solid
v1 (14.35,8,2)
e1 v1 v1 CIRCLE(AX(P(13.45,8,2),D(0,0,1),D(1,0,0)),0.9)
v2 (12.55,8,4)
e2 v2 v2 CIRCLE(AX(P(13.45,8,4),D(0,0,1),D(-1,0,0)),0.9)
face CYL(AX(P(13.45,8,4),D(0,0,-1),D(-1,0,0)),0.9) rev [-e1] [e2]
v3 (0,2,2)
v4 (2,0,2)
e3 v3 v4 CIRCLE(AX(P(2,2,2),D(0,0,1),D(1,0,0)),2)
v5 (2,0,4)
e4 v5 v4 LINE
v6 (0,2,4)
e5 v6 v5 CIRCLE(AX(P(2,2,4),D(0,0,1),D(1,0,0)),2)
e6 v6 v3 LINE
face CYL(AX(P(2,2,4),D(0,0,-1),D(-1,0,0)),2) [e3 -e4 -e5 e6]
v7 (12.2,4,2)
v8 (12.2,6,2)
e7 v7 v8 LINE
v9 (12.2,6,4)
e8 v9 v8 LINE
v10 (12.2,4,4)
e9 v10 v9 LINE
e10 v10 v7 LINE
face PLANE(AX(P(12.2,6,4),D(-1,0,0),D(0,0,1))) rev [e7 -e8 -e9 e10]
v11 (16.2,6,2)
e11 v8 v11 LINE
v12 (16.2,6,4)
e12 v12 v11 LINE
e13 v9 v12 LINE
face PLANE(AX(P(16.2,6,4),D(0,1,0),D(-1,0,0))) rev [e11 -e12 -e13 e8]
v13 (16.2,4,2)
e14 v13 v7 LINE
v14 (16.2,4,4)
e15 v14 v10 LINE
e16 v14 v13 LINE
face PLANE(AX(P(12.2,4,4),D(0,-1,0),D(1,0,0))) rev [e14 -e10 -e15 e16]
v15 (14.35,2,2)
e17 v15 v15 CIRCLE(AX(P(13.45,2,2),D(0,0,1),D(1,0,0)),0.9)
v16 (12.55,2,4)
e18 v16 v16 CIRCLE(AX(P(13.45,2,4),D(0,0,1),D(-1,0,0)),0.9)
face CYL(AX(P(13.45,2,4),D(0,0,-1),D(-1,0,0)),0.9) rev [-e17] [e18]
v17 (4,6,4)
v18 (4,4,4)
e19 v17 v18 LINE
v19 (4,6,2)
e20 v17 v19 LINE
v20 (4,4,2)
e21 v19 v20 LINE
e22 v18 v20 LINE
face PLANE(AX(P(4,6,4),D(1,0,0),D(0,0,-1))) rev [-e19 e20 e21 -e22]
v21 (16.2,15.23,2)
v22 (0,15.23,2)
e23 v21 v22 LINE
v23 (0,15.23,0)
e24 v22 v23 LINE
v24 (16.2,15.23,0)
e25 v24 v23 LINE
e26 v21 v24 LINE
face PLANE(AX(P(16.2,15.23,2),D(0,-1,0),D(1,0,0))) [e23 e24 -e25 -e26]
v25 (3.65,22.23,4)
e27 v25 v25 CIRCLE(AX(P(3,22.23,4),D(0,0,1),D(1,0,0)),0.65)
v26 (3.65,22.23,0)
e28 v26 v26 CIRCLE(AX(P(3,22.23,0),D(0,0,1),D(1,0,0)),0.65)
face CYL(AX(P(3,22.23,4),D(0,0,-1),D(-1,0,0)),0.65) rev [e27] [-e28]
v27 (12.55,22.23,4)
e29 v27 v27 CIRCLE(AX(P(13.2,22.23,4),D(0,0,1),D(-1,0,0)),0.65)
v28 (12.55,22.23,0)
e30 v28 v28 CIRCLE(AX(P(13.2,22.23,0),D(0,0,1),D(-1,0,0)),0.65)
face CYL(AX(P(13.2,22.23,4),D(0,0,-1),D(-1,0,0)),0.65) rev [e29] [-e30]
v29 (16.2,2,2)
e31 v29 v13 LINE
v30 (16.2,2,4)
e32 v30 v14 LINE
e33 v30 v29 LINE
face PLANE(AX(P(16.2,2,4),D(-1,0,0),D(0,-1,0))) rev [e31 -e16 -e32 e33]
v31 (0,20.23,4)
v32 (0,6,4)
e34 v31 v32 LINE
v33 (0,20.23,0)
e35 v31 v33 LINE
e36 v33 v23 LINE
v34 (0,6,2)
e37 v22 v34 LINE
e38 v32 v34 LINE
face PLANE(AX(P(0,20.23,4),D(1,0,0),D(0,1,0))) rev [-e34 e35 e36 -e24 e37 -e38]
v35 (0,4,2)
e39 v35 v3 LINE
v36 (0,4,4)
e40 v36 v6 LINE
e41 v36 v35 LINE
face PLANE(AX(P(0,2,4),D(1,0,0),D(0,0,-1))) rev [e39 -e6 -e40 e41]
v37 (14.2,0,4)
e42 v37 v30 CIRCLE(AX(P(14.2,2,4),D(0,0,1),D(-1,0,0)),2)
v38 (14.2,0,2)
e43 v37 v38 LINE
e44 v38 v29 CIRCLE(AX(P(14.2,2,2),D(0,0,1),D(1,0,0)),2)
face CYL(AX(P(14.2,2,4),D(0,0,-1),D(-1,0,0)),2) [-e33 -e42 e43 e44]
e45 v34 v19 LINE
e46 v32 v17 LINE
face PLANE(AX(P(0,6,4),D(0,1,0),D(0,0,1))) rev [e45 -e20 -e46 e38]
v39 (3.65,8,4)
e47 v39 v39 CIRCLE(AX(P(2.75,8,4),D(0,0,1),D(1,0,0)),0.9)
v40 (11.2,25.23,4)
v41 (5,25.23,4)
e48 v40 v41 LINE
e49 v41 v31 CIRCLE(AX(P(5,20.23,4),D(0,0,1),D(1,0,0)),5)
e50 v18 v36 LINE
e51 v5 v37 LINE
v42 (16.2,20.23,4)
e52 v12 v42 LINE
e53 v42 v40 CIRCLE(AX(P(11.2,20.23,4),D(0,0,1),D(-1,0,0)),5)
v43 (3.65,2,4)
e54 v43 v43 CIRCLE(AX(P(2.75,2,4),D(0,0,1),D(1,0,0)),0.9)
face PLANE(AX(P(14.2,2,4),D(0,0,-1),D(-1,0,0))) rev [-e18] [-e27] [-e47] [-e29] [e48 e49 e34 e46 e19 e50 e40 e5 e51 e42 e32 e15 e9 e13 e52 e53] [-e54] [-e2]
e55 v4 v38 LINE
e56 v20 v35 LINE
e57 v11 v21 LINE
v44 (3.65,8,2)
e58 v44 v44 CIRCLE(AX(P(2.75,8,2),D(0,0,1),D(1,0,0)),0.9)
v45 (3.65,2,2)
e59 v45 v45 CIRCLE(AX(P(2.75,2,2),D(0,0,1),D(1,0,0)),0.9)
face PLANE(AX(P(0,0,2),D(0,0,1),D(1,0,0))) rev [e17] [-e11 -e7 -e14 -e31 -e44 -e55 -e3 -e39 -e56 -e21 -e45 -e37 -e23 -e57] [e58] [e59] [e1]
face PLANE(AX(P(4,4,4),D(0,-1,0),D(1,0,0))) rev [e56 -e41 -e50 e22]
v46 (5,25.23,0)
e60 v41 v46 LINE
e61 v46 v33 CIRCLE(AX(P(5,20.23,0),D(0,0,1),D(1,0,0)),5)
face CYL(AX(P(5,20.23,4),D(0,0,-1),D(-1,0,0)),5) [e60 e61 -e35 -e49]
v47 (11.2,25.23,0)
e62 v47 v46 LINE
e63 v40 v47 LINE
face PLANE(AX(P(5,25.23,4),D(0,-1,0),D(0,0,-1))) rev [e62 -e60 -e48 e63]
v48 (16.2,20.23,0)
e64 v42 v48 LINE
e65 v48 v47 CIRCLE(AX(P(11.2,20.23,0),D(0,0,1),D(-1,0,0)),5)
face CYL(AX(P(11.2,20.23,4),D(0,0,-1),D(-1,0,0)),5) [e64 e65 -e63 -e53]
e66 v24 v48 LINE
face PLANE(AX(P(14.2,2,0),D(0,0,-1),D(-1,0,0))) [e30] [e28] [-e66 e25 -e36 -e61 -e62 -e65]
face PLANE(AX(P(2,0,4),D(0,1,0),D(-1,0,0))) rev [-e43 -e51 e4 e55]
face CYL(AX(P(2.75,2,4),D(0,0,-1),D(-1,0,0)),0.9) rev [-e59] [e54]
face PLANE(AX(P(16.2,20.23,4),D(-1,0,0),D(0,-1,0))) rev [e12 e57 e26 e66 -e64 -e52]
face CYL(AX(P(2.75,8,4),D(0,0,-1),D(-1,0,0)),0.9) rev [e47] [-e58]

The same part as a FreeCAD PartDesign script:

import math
import FreeCAD as App
import Part
import Sketcher
from FreeCAD import Vector

doc = App.newDocument("Part")
body = doc.addObject("PartDesign::Body", "Body")

sketch1 = body.newObject("Sketcher::SketchObject", "Sketch")
sketch1.AttachmentSupport = (doc.getObject("XY_Plane"), [""])
sketch1.MapMode = "FlatFace"
sketch1.addGeometry(Part.LineSegment(Vector(2, 0, 0), Vector(14.2, 0, 0)), False)
sketch1.addGeometry(Part.ArcOfCircle(Part.Circle(Vector(14.2, 2, 0), Vector(0, 0, 1), 2), math.radians(-90), math.radians(0)), False)
sketch1.addGeometry(Part.LineSegment(Vector(16.2, 2, 0), Vector(16.2, 4, 0)), False)
sketch1.addGeometry(Part.LineSegment(Vector(16.2, 4, 0), Vector(12.2, 4, 0)), False)
sketch1.addGeometry(Part.LineSegment(Vector(12.2, 4, 0), Vector(12.2, 6, 0)), False)
sketch1.addGeometry(Part.LineSegment(Vector(12.2, 6, 0), Vector(16.2, 6, 0)), False)
sketch1.addGeometry(Part.LineSegment(Vector(16.2, 6, 0), Vector(16.2, 20.23, 0)), False)
sketch1.addGeometry(Part.ArcOfCircle(Part.Circle(Vector(11.2, 20.23, 0), Vector(0, 0, 1), 5), math.radians(0), math.radians(90)), False)
sketch1.addGeometry(Part.LineSegment(Vector(11.2, 25.23, 0), Vector(5, 25.23, 0)), False)
sketch1.addGeometry(Part.ArcOfCircle(Part.Circle(Vector(5, 20.23, 0), Vector(0, 0, 1), 5), math.radians(90), math.radians(180)), False)
sketch1.addGeometry(Part.LineSegment(Vector(0, 20.23, 0), Vector(0, 6, 0)), False)
sketch1.addGeometry(Part.LineSegment(Vector(0, 6, 0), Vector(4, 6, 0)), False)
sketch1.addGeometry(Part.LineSegment(Vector(4, 6, 0), Vector(4, 4, 0)), False)
sketch1.addGeometry(Part.LineSegment(Vector(4, 4, 0), Vector(0, 4, 0)), False)
sketch1.addGeometry(Part.LineSegment(Vector(0, 4, 0), Vector(0, 2, 0)), False)
sketch1.addGeometry(Part.ArcOfCircle(Part.Circle(Vector(2, 2, 0), Vector(0, 0, 1), 2), math.radians(-180), math.radians(-90)), False)
sketch1.addGeometry(Part.Circle(Vector(2.75, 2, 0), Vector(0, 0, 1), 0.9), False)
sketch1.addGeometry(Part.Circle(Vector(2.75, 8, 0), Vector(0, 0, 1), 0.9), False)
sketch1.addGeometry(Part.Circle(Vector(13.45, 2, 0), Vector(0, 0, 1), 0.9), False)
sketch1.addGeometry(Part.Circle(Vector(13.45, 8, 0), Vector(0, 0, 1), 0.9), False)
sketch1.addGeometry(Part.Circle(Vector(3, 22.23, 0), Vector(0, 0, 1), 0.65), False)
sketch1.addGeometry(Part.Circle(Vector(13.2, 22.23, 0), Vector(0, 0, 1), 0.65), False)
sketch1.addConstraint(Sketcher.Constraint("Tangent", 0, 2, 1, 1))
sketch1.addConstraint(Sketcher.Constraint("Tangent", 1, 2, 2, 1))
sketch1.addConstraint(Sketcher.Constraint("Coincident", 2, 2, 3, 1))
sketch1.addConstraint(Sketcher.Constraint("Coincident", 3, 2, 4, 1))
sketch1.addConstraint(Sketcher.Constraint("Coincident", 4, 2, 5, 1))
sketch1.addConstraint(Sketcher.Constraint("Coincident", 5, 2, 6, 1))
sketch1.addConstraint(Sketcher.Constraint("Tangent", 6, 2, 7, 1))
sketch1.addConstraint(Sketcher.Constraint("Tangent", 7, 2, 8, 1))
sketch1.addConstraint(Sketcher.Constraint("Tangent", 8, 2, 9, 1))
sketch1.addConstraint(Sketcher.Constraint("Tangent", 9, 2, 10, 1))
sketch1.addConstraint(Sketcher.Constraint("Coincident", 10, 2, 11, 1))
sketch1.addConstraint(Sketcher.Constraint("Coincident", 11, 2, 12, 1))
sketch1.addConstraint(Sketcher.Constraint("Coincident", 12, 2, 13, 1))
sketch1.addConstraint(Sketcher.Constraint("Coincident", 13, 2, 14, 1))
sketch1.addConstraint(Sketcher.Constraint("Tangent", 14, 2, 15, 1))
sketch1.addConstraint(Sketcher.Constraint("Tangent", 15, 2, 0, 1))
sketch1.addConstraint(Sketcher.Constraint("Horizontal", 0))
sketch1.addConstraint(Sketcher.Constraint("Vertical", 2))
sketch1.addConstraint(Sketcher.Constraint("Horizontal", 3))
sketch1.addConstraint(Sketcher.Constraint("Vertical", 4))
sketch1.addConstraint(Sketcher.Constraint("Horizontal", 5))
sketch1.addConstraint(Sketcher.Constraint("Vertical", 6))
sketch1.addConstraint(Sketcher.Constraint("Horizontal", 8))
sketch1.addConstraint(Sketcher.Constraint("Vertical", 10))
sketch1.addConstraint(Sketcher.Constraint("Horizontal", 11))
sketch1.addConstraint(Sketcher.Constraint("Vertical", 12))
sketch1.addConstraint(Sketcher.Constraint("Horizontal", 13))
sketch1.addConstraint(Sketcher.Constraint("Vertical", 14))
sketch1.addConstraint(Sketcher.Constraint("Equal", 7, 9))
sketch1.addConstraint(Sketcher.Constraint("Equal", 1, 15))
sketch1.addConstraint(Sketcher.Constraint("Equal", 16, 17))
sketch1.addConstraint(Sketcher.Constraint("Equal", 17, 18))
sketch1.addConstraint(Sketcher.Constraint("Equal", 18, 19))
sketch1.addConstraint(Sketcher.Constraint("Equal", 20, 21))
sketch1.addConstraint(Sketcher.Constraint("PointOnObject", 0, 2, -1))
sketch1.addConstraint(Sketcher.Constraint("PointOnObject", 9, 2, -2))
sketch1.addConstraint(Sketcher.Constraint("PointOnObject", 13, 2, -2))
sketch1.addConstraint(Sketcher.Constraint("Horizontal", 15, 3, 16, 3))
sketch1.addConstraint(Sketcher.Constraint("Horizontal", 16, 3, 18, 3))
sketch1.addConstraint(Sketcher.Constraint("Horizontal", 17, 3, 19, 3))
sketch1.addConstraint(Sketcher.Constraint("Horizontal", 20, 3, 21, 3))
sketch1.addConstraint(Sketcher.Constraint("Horizontal", 5, 2, 10, 2))
sketch1.addConstraint(Sketcher.Constraint("Horizontal", 3, 2, 12, 2))
sketch1.addConstraint(Sketcher.Constraint("Vertical", 16, 3, 17, 3))
sketch1.addConstraint(Sketcher.Constraint("Vertical", 18, 3, 19, 3))
sketch1.addConstraint(Sketcher.Constraint("Vertical", 2, 2, 5, 2))
sketch1.addConstraint(Sketcher.Constraint("Equal", 5, 11))
sketch1.addConstraint(Sketcher.Constraint("Equal", 2, 4))
sketch1.addConstraint(Sketcher.Constraint("Radius", 1, 2.0))
sketch1.addConstraint(Sketcher.Constraint("Radius", 7, 5.0))
sketch1.addConstraint(Sketcher.Constraint("Diameter", 16, 1.8))
sketch1.addConstraint(Sketcher.Constraint("Diameter", 20, 1.3))
sketch1.addConstraint(Sketcher.Constraint("DistanceX", 3, 2, 3, 1, 4.0))
sketch1.addConstraint(Sketcher.Constraint("DistanceY", 2, 1, 2, 2, 2.0))
sketch1.addConstraint(Sketcher.Constraint("DistanceX", 0, 1, 0, 2, 12.2))
sketch1.addConstraint(Sketcher.Constraint("DistanceY", -1, 1, 17, 3, 8.0))
sketch1.addConstraint(Sketcher.Constraint("DistanceX", -1, 1, 20, 3, 3.0))
sketch1.addConstraint(Sketcher.Constraint("DistanceY", 9, 3, 20, 3, 2.0))
sketch1.addConstraint(Sketcher.Constraint("DistanceX", 7, 3, 21, 3, 2.0))
sketch1.addConstraint(Sketcher.Constraint("DistanceY", 6, 1, 6, 2, 14.23))
sketch1.addConstraint(Sketcher.Constraint("DistanceX", 16, 3, 18, 3, 10.7))
sketch1.addConstraint(Sketcher.Constraint("DistanceX", -1, 1, 16, 3, 2.75))
pad1 = body.newObject("PartDesign::Pad", "Pad")
pad1.Profile = sketch1
pad1.Length = 4

sketch2 = body.newObject("Sketcher::SketchObject", "Sketch001")
sketch2.AttachmentSupport = (doc.getObject("XY_Plane"), [""])
sketch2.MapMode = "FlatFace"
sketch2.addGeometry(Part.LineSegment(Vector(0, 15.23, 0), Vector(0, 0, 0)), False)
sketch2.addGeometry(Part.LineSegment(Vector(0, 0, 0), Vector(16.2, 0, 0)), False)
sketch2.addGeometry(Part.LineSegment(Vector(16.2, 0, 0), Vector(16.2, 15.23, 0)), False)
sketch2.addGeometry(Part.LineSegment(Vector(16.2, 15.23, 0), Vector(0, 15.23, 0)), False)
sketch2.addConstraint(Sketcher.Constraint("Coincident", 0, 2, 1, 1))
sketch2.addConstraint(Sketcher.Constraint("Coincident", 1, 2, 2, 1))
sketch2.addConstraint(Sketcher.Constraint("Coincident", 2, 2, 3, 1))
sketch2.addConstraint(Sketcher.Constraint("Coincident", 3, 2, 0, 1))
sketch2.addConstraint(Sketcher.Constraint("Vertical", 0))
sketch2.addConstraint(Sketcher.Constraint("Horizontal", 1))
sketch2.addConstraint(Sketcher.Constraint("Vertical", 2))
sketch2.addConstraint(Sketcher.Constraint("Horizontal", 3))
sketch2.addConstraint(Sketcher.Constraint("Coincident", 0, 2, -1, 1))
sketch2.addConstraint(Sketcher.Constraint("DistanceX", 1, 1, 1, 2, 16.2))
sketch2.addConstraint(Sketcher.Constraint("DistanceY", 0, 2, 0, 1, 15.23))
pocket1 = body.newObject("PartDesign::Pocket", "Pocket")
pocket1.Profile = sketch2
pocket1.Length = 2
pocket1.Reversed = True

doc.recompute()
